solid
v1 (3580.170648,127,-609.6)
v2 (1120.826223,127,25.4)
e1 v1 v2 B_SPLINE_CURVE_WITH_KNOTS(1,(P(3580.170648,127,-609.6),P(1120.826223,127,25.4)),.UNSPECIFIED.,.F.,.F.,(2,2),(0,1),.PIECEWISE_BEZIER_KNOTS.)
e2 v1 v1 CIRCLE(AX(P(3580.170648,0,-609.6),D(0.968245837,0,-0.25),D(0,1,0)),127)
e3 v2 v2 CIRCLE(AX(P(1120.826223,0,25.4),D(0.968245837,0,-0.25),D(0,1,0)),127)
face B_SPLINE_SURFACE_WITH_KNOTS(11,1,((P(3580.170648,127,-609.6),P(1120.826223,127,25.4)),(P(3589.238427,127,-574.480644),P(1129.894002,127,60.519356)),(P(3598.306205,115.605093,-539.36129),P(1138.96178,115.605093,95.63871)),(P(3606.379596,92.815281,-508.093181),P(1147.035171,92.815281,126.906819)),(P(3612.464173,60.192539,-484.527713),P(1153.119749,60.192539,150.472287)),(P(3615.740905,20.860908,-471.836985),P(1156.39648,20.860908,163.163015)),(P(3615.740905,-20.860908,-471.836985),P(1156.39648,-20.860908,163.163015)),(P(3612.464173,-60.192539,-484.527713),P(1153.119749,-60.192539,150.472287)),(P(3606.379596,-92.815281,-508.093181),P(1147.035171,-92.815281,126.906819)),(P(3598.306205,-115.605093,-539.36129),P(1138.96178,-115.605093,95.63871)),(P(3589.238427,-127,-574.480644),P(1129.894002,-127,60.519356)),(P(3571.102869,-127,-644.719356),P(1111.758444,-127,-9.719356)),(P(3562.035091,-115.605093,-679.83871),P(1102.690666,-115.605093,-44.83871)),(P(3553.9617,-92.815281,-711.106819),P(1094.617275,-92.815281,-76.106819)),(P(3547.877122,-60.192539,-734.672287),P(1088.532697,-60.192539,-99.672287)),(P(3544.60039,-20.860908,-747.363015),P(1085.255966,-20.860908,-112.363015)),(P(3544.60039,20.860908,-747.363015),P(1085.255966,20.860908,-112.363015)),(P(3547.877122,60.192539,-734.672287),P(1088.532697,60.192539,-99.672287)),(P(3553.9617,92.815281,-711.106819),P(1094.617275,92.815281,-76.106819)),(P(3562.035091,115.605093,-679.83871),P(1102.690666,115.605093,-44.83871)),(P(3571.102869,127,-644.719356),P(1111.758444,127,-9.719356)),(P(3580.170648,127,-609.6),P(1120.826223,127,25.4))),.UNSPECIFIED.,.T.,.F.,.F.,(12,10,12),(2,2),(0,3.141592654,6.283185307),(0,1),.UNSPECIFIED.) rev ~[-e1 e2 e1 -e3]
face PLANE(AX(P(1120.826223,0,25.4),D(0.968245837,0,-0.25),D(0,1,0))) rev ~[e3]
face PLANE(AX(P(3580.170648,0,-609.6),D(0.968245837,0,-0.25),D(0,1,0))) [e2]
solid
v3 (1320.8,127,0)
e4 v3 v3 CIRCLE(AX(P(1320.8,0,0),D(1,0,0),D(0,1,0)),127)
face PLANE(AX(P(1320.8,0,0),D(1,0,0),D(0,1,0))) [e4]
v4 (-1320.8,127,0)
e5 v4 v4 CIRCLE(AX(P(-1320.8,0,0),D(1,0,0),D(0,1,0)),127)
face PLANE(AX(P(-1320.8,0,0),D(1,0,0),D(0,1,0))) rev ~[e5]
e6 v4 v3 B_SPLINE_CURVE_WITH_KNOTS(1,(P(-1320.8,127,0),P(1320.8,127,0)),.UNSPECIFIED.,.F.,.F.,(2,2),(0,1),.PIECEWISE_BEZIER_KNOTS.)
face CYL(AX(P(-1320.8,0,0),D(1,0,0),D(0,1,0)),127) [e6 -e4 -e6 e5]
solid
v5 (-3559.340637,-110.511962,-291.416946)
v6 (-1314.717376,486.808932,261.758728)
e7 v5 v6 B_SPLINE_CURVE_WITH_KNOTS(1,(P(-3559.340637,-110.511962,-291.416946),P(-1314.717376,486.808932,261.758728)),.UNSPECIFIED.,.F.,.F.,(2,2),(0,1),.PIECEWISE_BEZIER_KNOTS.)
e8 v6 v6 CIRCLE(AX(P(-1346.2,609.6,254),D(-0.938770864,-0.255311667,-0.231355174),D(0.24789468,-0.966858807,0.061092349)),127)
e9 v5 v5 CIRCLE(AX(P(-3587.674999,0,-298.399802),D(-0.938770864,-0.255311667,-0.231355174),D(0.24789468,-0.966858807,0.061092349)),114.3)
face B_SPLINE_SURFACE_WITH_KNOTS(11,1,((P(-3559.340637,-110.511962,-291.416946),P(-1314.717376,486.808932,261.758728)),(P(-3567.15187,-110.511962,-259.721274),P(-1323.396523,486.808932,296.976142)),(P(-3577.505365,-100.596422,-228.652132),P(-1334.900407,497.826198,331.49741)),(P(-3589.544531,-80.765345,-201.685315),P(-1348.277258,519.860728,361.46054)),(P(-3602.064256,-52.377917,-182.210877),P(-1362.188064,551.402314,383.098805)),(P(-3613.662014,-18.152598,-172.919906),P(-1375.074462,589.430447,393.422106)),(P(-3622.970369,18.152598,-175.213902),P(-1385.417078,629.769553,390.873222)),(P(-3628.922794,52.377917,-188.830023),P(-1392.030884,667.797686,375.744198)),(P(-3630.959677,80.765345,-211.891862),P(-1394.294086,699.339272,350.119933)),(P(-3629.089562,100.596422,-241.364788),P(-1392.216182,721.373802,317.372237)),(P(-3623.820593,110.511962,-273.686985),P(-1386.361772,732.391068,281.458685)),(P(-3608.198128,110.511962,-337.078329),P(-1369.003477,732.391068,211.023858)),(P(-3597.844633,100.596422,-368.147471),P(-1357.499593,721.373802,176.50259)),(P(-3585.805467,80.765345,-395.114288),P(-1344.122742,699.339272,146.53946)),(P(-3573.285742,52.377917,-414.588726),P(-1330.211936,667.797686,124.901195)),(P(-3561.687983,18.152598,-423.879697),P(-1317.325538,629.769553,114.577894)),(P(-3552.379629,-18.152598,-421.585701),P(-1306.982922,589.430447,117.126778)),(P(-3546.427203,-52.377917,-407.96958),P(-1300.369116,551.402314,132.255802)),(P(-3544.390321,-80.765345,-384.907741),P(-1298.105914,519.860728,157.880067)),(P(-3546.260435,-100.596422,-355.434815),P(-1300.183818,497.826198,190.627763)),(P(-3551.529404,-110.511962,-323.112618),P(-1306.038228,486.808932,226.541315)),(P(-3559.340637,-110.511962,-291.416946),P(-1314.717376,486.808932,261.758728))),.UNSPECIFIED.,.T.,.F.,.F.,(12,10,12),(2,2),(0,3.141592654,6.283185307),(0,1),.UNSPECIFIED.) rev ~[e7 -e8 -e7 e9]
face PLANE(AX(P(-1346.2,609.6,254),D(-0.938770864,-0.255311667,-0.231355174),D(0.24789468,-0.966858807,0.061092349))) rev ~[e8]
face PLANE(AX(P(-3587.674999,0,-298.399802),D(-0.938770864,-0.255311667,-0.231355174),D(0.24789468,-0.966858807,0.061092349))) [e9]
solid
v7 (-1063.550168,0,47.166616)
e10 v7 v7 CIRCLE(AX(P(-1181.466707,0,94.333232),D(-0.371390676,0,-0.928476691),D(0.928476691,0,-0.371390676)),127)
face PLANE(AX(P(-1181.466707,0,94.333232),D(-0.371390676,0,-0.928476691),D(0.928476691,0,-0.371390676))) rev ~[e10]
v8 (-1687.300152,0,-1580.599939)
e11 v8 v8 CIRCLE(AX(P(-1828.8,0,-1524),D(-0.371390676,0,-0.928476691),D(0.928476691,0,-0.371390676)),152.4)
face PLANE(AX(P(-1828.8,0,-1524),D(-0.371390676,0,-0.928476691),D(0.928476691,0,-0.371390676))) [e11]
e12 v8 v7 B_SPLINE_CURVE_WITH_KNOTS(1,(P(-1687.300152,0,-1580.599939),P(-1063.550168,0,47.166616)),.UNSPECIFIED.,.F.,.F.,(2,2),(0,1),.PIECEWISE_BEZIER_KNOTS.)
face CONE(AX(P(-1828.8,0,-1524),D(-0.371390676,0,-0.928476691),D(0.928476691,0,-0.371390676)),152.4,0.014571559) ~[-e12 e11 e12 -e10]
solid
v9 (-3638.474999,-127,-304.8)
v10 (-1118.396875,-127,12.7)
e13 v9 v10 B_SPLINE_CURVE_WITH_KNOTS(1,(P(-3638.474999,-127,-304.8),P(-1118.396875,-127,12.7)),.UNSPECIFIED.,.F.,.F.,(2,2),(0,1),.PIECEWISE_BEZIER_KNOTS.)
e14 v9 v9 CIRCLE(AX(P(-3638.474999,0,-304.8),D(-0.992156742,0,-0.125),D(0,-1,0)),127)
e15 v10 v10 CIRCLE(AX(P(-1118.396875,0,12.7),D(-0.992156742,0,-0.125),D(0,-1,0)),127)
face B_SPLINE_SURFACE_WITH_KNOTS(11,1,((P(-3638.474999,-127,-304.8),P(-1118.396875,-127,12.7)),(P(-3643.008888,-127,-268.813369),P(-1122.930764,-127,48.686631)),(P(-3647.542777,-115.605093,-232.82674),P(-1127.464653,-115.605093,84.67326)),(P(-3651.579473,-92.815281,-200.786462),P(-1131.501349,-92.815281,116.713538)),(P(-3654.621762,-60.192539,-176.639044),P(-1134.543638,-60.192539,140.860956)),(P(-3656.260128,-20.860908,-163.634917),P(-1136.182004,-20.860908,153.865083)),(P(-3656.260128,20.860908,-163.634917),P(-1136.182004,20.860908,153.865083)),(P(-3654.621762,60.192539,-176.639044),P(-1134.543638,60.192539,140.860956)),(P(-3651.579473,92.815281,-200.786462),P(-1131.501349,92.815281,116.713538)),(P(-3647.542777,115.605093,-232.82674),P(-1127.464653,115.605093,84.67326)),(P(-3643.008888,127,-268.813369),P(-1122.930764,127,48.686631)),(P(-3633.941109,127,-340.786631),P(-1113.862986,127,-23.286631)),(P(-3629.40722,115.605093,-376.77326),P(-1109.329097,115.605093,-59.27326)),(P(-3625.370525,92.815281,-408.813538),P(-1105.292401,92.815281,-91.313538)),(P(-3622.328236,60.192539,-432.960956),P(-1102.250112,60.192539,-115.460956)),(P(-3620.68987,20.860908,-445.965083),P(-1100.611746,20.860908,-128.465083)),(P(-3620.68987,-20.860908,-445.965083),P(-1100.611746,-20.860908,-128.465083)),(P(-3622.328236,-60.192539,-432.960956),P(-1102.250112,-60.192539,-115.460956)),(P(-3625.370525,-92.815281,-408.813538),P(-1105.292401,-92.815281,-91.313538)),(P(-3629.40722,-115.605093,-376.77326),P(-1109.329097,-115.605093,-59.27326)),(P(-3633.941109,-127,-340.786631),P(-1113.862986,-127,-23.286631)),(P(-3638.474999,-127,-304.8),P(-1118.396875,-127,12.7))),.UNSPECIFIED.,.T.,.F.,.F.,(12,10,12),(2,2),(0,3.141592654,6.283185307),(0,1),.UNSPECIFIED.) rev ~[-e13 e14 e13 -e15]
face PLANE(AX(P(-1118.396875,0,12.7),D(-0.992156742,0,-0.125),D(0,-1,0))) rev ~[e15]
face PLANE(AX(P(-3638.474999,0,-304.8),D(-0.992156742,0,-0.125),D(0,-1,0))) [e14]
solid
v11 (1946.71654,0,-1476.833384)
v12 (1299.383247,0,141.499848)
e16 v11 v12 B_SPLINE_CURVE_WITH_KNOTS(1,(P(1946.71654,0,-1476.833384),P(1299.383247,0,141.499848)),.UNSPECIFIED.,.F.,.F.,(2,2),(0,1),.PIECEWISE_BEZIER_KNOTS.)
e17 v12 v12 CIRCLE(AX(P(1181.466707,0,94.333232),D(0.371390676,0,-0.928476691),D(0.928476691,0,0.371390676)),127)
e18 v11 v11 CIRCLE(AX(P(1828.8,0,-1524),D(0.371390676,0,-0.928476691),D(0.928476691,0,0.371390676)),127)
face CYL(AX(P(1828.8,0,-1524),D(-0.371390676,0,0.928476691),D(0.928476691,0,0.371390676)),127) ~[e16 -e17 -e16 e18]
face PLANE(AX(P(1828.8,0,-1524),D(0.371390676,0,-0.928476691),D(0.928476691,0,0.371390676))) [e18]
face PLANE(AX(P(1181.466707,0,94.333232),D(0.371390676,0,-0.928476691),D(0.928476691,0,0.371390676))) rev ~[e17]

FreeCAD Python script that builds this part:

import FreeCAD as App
import Part
import Sketcher
Q = App.Units.Quantity

doc = App.newDocument("Part")
body = doc.addObject("PartDesign::Body", "Body")

# Sketch on an angled plane
sketch1 = doc.addObject("Sketcher::SketchObject", "Sketch")
body.addObject(sketch1)
sketch1.Placement = App.Placement(App.Vector(-3619.424999, 0, -456.004687), App.Rotation(App.Vector(0, -1, 0), App.Vector(-0.125, 0, 0.992156742), App.Vector(-0.992156742, 0, -0.125), "ZXY"))
sketch1.addGeometry(Part.Circle(App.Vector(0, 152, 0), App.Vector(0, 0, 1), 127), False)
sketch1.addConstraint([
    Sketcher.Constraint("PointOnObject", 0, 3, -2),
    Sketcher.Constraint("Diameter", 0, Q("10 in")),
    Sketcher.Constraint("DistanceY", -1, 1, 0, 3, Q("6 in")),
])

# Sketch on an angled plane
sketch2 = doc.addObject("Sketcher::SketchObject", "Sketch001")
body.addObject(sketch2)
sketch2.Placement = App.Placement(App.Vector(-1099.346875, 0, -138.504687), App.Rotation(App.Vector(0, -1, 0), App.Vector(-0.125, 0, 0.992156742), App.Vector(-0.992156742, 0, -0.125), "ZXY"))
sketch2.addGeometry(Part.Circle(App.Vector(0, 152, 0), App.Vector(0, 0, 1), 127), False)
sketch2.addConstraint([
    Sketcher.Constraint("PointOnObject", 0, 3, -2),
    Sketcher.Constraint("Diameter", 0, Q("10 in")),
    Sketcher.Constraint("DistanceY", -1, 1, 0, 3, Q("6 in")),
])

additiveloft = doc.addObject("PartDesign::AdditiveLoft", "AdditiveLoft")
body.addObject(additiveloft)
additiveloft.Profile = sketch1
additiveloft.Sections = [sketch2]
body2 = doc.addObject("PartDesign::Body", "Body001")

# Sketch on an angled plane
sketch3 = doc.addObject("Sketcher::SketchObject", "Sketch002")
body2.addObject(sketch3)
sketch3.Placement = App.Placement(App.Vector(-777.765517, 0, -1944.413793), App.Rotation(App.Vector(0.928476691, 0, -0.371390676), App.Vector(0, -1, 0), App.Vector(-0.371390676, 0, -0.928476691), "ZXY"))
sketch3.addGeometry(Part.Circle(App.Vector(-1132, 0, 0), App.Vector(0, 0, 1), 152), False)
sketch3.addConstraint([
    Sketcher.Constraint("PointOnObject", 0, 3, -1),
    Sketcher.Constraint("Diameter", 0, Q("12 in")),
    Sketcher.Constraint("DistanceX", 0, 3, -1, 1, Q("1131.998781 mm")),
])

# Sketch on an angled plane
sketch4 = doc.addObject("Sketcher::SketchObject", "Sketch003")
body2.addObject(sketch4)
sketch4.Placement = App.Placement(App.Vector(-130.432225, 0, -326.080561), App.Rotation(App.Vector(0.928476691, 0, -0.371390676), App.Vector(0, -1, 0), App.Vector(-0.371390676, 0, -0.928476691), "ZXY"))
sketch4.addGeometry(Part.Circle(App.Vector(-1131.998781, 0, 0), App.Vector(0, 0, 1), 127), False)
sketch4.addConstraint([
    Sketcher.Constraint("PointOnObject", 0, 3, -1),
    Sketcher.Constraint("Diameter", 0, Q("10 in")),
    Sketcher.Constraint("DistanceX", 0, 3, -1, 1, Q("1131.998781 mm")),
])

additiveloft2 = doc.addObject("PartDesign::AdditiveLoft", "AdditiveLoft001")
body2.addObject(additiveloft2)
additiveloft2.Profile = sketch3
additiveloft2.Sections = [sketch4]
body3 = doc.addObject("PartDesign::Body", "Body002")

# Sketch on YZ plane
sketch5 = doc.addObject("Sketcher::SketchObject", "Sketch004")
body3.addObject(sketch5)
sketch5.AttachmentSupport = (doc.getObject("YZ_Plane002"), [""])
sketch5.MapMode = "FlatFace"
sketch5.AttachmentOffset = App.Placement(App.Vector(0, 0, -52 * 25.4), App.Rotation())
sketch5.addGeometry(Part.Circle(App.Vector(0, 0, 0), App.Vector(0, 0, 1), 127), False)
sketch5.addConstraint([
    Sketcher.Constraint("Coincident", 0, 3, -1, 1),
    Sketcher.Constraint("Diameter", 0, Q("10 in")),
])

# Sketch on YZ plane
sketch6 = doc.addObject("Sketcher::SketchObject", "Sketch005")
body3.addObject(sketch6)
sketch6.AttachmentSupport = (doc.getObject("YZ_Plane002"), [""])
sketch6.MapMode = "FlatFace"
sketch6.AttachmentOffset = App.Placement(App.Vector(0, 0, 52 * 25.4), App.Rotation())
sketch6.addGeometry(Part.Circle(App.Vector(0, 0, 0), App.Vector(0, 0, 1), 127), False)
sketch6.addConstraint([
    Sketcher.Constraint("Coincident", 0, 3, -1, 1),
    Sketcher.Constraint("Diameter", 0, Q("10 in")),
])

additiveloft3 = doc.addObject("PartDesign::AdditiveLoft", "AdditiveLoft002")
body3.addObject(additiveloft3)
additiveloft3.Profile = sketch5
additiveloft3.Sections = [sketch6]
body4 = doc.addObject("PartDesign::Body", "Body003")

# Sketch on an angled plane
sketch7 = doc.addObject("Sketcher::SketchObject", "Sketch006")
body4.addObject(sketch7)
sketch7.Placement = App.Placement(App.Vector(3503.970648, 0, -904.721331), App.Rotation(App.Vector(0, 1, 0), App.Vector(0.25, 0, 0.968245837), App.Vector(0.968245837, 0, -0.25), "ZXY"))
sketch7.addGeometry(Part.Circle(App.Vector(0, 305, 0), App.Vector(0, 0, 1), 127), False)
sketch7.addConstraint([
    Sketcher.Constraint("PointOnObject", 0, 3, -2),
    Sketcher.Constraint("Diameter", 0, Q("10 in")),
    Sketcher.Constraint("DistanceY", -1, 1, 0, 3, Q("12 in")),
])

# Sketch on an angled plane
sketch8 = doc.addObject("Sketcher::SketchObject", "Sketch007")
body4.addObject(sketch8)
sketch8.Placement = App.Placement(App.Vector(1044.626223, 0, -269.721331), App.Rotation(App.Vector(0, 1, 0), App.Vector(0.25, 0, 0.968245837), App.Vector(0.968245837, 0, -0.25), "ZXY"))
sketch8.addGeometry(Part.Circle(App.Vector(0, 305, 0), App.Vector(0, 0, 1), 127), False)
sketch8.addConstraint([
    Sketcher.Constraint("PointOnObject", 0, 3, -2),
    Sketcher.Constraint("Diameter", 0, Q("10 in")),
    Sketcher.Constraint("DistanceY", -1, 1, 0, 3, Q("12 in")),
])

additiveloft4 = doc.addObject("PartDesign::AdditiveLoft", "AdditiveLoft003")
body4.addObject(additiveloft4)
additiveloft4.Profile = sketch7
additiveloft4.Sections = [sketch8]
body5 = doc.addObject("PartDesign::Body", "Body004")

# Sketch on an angled plane
sketch9 = doc.addObject("Sketcher::SketchObject", "Sketch008")
body5.addObject(sketch9)
sketch9.Placement = App.Placement(App.Vector(777.765517, 0, -1944.413793), App.Rotation(App.Vector(0.928476691, 0, 0.371390676), App.Vector(0, -1, 0), App.Vector(0.371390676, 0, -0.928476691), "ZXY"))
sketch9.addGeometry(Part.Circle(App.Vector(1131.998781, 0, 0), App.Vector(0, 0, 1), 127), False)
sketch9.addConstraint([
    Sketcher.Constraint("PointOnObject", 0, 3, -1),
    Sketcher.Constraint("Diameter", 0, Q("10 in")),
    Sketcher.Constraint("DistanceX", -1, 1, 0, 3, Q("1131.998781 mm")),
])

# Sketch on an angled plane
sketch10 = doc.addObject("Sketcher::SketchObject", "Sketch009")
body5.addObject(sketch10)
sketch10.Placement = App.Placement(App.Vector(130.432225, 0, -326.080561), App.Rotation(App.Vector(0.928476691, 0, 0.371390676), App.Vector(0, -1, 0), App.Vector(0.371390676, 0, -0.928476691), "ZXY"))
sketch10.addGeometry(Part.Circle(App.Vector(1131.998781, 0, 0), App.Vector(0, 0, 1), 127), False)
sketch10.addConstraint([
    Sketcher.Constraint("PointOnObject", 0, 3, -1),
    Sketcher.Constraint("Diameter", 0, Q("10 in")),
    Sketcher.Constraint("DistanceX", -1, 1, 0, 3, Q("1131.998781 mm")),
])

additiveloft5 = doc.addObject("PartDesign::AdditiveLoft", "AdditiveLoft004")
body5.addObject(additiveloft5)
additiveloft5.Profile = sketch9
additiveloft5.Sections = [sketch10]
body6 = doc.addObject("PartDesign::Body", "Body005")

# Sketch on an angled plane
sketch11 = doc.addObject("Sketcher::SketchObject", "Sketch010")
body6.addObject(sketch11)
sketch11.Placement = App.Placement(App.Vector(-3226.594043, -877.516693, -795.177243), App.Rotation(App.Vector(0.24789468, -0.966858807, 0.061092349), App.Vector(-0.239285377, 0, 0.970949282), App.Vector(-0.938770864, -0.255311667, -0.231355174), "ZXY"))
sketch11.addGeometry(Part.Circle(App.Vector(-908, 569, 0), App.Vector(0, 0, 1), 114), False)
sketch11.addConstraint([
    Sketcher.Constraint("Diameter", 0, Q("9 in")),
    Sketcher.Constraint("DistanceX", 0, 3, -1, 1, Q("907.59549 mm")),
    Sketcher.Constraint("DistanceY", -1, 1, 0, 3, Q("568.747092 mm")),
])

# Sketch on an angled plane
sketch12 = doc.addObject("Sketcher::SketchObject", "Sketch011")
body6.addObject(sketch12)
sketch12.Placement = App.Placement(App.Vector(-985.119044, -267.916693, -242.777441), App.Rotation(App.Vector(0.24789468, -0.966858807, 0.061092349), App.Vector(-0.239285377, 0, 0.970949282), App.Vector(-0.938770864, -0.255311667, -0.231355174), "ZXY"))
sketch12.addGeometry(Part.Circle(App.Vector(-908, 569, 0), App.Vector(0, 0, 1), 127), False)
sketch12.addConstraint([
    Sketcher.Constraint("Diameter", 0, Q("10 in")),
    Sketcher.Constraint("DistanceX", 0, 3, -1, 1, Q("907.59549 mm")),
    Sketcher.Constraint("DistanceY", -1, 1, 0, 3, Q("568.747092 mm")),
])

additiveloft6 = doc.addObject("PartDesign::AdditiveLoft", "AdditiveLoft005")
body6.addObject(additiveloft6)
additiveloft6.Profile = sketch11
additiveloft6.Sections = [sketch12]

doc.recompute()
